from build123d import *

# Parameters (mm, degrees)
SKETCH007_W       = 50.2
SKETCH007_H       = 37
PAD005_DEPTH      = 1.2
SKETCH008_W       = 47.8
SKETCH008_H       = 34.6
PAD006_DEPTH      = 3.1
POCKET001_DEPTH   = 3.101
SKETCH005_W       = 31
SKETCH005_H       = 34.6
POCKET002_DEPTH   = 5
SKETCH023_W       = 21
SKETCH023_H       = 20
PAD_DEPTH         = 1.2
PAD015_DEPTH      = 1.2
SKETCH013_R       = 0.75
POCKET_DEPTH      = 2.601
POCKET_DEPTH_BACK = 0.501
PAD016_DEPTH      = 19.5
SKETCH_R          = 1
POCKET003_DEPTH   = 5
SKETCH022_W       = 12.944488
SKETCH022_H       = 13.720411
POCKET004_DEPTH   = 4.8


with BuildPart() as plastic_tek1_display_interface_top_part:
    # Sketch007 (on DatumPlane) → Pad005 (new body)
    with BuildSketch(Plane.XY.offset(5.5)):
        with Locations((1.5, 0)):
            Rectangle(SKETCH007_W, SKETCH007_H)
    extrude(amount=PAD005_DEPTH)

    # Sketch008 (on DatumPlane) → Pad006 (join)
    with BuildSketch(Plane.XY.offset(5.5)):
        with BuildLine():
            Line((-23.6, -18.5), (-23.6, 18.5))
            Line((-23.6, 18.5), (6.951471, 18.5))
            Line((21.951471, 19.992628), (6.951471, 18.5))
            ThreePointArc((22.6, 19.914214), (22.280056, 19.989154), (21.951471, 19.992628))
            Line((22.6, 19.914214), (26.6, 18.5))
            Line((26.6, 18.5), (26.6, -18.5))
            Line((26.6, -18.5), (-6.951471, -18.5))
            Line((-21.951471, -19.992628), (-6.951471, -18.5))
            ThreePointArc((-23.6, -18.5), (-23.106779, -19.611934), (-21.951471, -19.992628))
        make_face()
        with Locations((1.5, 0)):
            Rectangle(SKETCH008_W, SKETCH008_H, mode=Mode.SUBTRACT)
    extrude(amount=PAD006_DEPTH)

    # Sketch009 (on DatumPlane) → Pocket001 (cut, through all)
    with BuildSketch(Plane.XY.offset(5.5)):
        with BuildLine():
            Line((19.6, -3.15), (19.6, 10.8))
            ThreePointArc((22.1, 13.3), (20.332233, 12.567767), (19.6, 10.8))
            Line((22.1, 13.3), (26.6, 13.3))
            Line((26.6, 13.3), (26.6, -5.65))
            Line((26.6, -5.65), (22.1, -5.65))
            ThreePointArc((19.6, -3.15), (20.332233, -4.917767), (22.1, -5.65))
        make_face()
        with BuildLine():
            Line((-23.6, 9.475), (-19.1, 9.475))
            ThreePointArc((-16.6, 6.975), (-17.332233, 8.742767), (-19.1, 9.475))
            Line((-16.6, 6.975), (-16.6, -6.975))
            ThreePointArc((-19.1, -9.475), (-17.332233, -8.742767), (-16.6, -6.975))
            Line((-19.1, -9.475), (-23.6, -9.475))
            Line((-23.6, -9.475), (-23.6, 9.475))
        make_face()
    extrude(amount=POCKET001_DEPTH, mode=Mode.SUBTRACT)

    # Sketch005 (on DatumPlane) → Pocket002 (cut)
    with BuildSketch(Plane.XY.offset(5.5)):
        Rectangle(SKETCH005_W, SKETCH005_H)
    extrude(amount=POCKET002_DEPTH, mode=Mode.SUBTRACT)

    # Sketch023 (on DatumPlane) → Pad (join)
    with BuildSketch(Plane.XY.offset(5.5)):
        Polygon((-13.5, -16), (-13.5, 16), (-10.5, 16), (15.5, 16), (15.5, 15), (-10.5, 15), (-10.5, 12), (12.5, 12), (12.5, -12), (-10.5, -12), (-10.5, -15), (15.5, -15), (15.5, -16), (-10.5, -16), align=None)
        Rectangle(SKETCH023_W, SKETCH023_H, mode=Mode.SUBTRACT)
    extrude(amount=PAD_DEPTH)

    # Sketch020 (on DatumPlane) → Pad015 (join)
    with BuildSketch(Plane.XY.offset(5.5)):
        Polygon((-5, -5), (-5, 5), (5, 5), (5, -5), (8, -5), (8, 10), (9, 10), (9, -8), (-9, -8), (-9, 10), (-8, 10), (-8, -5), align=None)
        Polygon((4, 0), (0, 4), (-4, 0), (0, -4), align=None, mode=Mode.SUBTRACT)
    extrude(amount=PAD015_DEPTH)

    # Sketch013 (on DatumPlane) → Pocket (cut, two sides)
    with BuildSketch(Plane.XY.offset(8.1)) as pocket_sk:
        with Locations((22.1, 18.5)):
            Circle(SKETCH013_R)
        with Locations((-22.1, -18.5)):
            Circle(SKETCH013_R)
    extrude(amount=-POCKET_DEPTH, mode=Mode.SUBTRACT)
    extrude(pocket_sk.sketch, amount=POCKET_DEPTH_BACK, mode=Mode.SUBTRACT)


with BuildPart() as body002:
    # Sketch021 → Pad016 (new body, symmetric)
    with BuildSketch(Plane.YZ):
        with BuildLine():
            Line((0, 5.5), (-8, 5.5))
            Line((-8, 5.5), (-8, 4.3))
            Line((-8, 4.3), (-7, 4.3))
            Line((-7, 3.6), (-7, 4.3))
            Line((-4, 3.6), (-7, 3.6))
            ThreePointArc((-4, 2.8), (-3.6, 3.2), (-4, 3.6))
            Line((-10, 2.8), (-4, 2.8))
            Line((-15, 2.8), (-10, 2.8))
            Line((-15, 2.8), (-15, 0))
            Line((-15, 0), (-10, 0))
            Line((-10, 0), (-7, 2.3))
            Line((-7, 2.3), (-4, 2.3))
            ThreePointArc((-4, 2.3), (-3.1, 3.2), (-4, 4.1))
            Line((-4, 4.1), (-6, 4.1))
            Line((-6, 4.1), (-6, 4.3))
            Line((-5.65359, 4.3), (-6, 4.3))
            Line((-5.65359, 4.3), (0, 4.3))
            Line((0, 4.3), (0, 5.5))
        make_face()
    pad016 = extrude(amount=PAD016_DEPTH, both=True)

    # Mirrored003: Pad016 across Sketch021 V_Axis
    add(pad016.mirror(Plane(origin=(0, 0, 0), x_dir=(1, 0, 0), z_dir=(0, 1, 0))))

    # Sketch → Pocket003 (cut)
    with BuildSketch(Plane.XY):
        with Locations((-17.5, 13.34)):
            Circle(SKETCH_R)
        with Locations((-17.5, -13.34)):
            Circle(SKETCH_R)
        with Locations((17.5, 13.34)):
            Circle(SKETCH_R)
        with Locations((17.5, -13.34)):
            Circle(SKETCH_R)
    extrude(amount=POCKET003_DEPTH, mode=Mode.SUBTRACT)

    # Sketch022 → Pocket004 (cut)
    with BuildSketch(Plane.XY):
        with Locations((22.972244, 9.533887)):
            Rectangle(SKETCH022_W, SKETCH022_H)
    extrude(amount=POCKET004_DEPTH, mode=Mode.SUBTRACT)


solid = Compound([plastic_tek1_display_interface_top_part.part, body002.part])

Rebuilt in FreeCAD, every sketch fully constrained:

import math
import FreeCAD as App
import Part
import Sketcher

doc = App.newDocument("Part")
body = doc.addObject("PartDesign::Body", "Body")

# Sketch on XY plane
sketch1 = body.newObject("Sketcher::SketchObject", "Sketch")
sketch1.AttachmentSupport = (doc.getObject("XY_Plane"), [""])
sketch1.MapMode = "FlatFace"
sketch1.AttachmentOffset = App.Placement(App.Vector(0, 0, 5.5), App.Rotation())
sketch1.addGeometry(Part.LineSegment(App.Vector(-24, 18, 0), App.Vector(-24, -18, 0)), False)
sketch1.addGeometry(Part.LineSegment(App.Vector(-24, -18, 0), App.Vector(27, -18, 0)), False)
sketch1.addGeometry(Part.LineSegment(App.Vector(27, -18, 0), App.Vector(27, 18, 0)), False)
sketch1.addGeometry(Part.LineSegment(App.Vector(27, 18, 0), App.Vector(-24, 18, 0)), False)
sketch1.addConstraint(Sketcher.Constraint("Coincident", 0, 2, 1, 1))
sketch1.addConstraint(Sketcher.Constraint("Coincident", 1, 2, 2, 1))
sketch1.addConstraint(Sketcher.Constraint("Coincident", 2, 2, 3, 1))
sketch1.addConstraint(Sketcher.Constraint("Coincident", 3, 2, 0, 1))
sketch1.addConstraint(Sketcher.Constraint("Vertical", 0))
sketch1.addConstraint(Sketcher.Constraint("Horizontal", 1))
sketch1.addConstraint(Sketcher.Constraint("Vertical", 2))
sketch1.addConstraint(Sketcher.Constraint("Horizontal", 3))
sketch1.addConstraint(Sketcher.Constraint("DistanceY", 0, 2, 0, 1, 37.0))
sketch1.addConstraint(Sketcher.Constraint("DistanceX", 1, 1, 1, 2, 50.2))
sketch1.addConstraint(Sketcher.Constraint("DistanceX", 0, 2, -1, 1, 23.6))
sketch1.addConstraint(Sketcher.Constraint("DistanceY", 0, 2, -1, 1, 18.5))
pad1 = body.newObject("PartDesign::Pad", "Pad")
pad1.Profile = sketch1
pad1.Length = 1.2

# Sketch on XY plane
sketch2 = body.newObject("Sketcher::SketchObject", "Sketch001")
sketch2.AttachmentSupport = (doc.getObject("XY_Plane"), [""])
sketch2.MapMode = "FlatFace"
sketch2.AttachmentOffset = App.Placement(App.Vector(0, 0, 5.5), App.Rotation())
sketch2.addGeometry(Part.LineSegment(App.Vector(-23.6, 18.5, 0), App.Vector(-23.6, -18.5, 0)), False)
sketch2.addGeometry(Part.ArcOfCircle(Part.Circle(App.Vector(-22.1, -18.5, 0), App.Vector(0, 0, 1), 1.5), math.radians(180), math.radians(276)), False)
sketch2.addGeometry(Part.LineSegment(App.Vector(-22, -20, 0), App.Vector(-7, -18.5, 0)), False)
sketch2.addGeometry(Part.LineSegment(App.Vector(-7, -18.5, 0), App.Vector(26.6, -18.5, 0)), False)
sketch2.addGeometry(Part.LineSegment(App.Vector(26.6, -18.5, 0), App.Vector(26.6, 18.5, 0)), False)
sketch2.addGeometry(Part.LineSegment(App.Vector(26.6, 18.5, 0), App.Vector(22.6, 19.9, 0)), False)
sketch2.addGeometry(Part.ArcOfCircle(Part.Circle(App.Vector(22.1, 18.5, 0), App.Vector(0, 0, 1), 1.5), math.radians(71), math.radians(96)), False)
sketch2.addGeometry(Part.LineSegment(App.Vector(22, 20, 0), App.Vector(7, 18.5, 0)), False)
sketch2.addGeometry(Part.LineSegment(App.Vector(7, 18.5, 0), App.Vector(-23.6, 18.5, 0)), False)
sketch2.addGeometry(Part.LineSegment(App.Vector(-22.4, -17.3, 0), App.Vector(-22.4, 17.3, 0)), False)
sketch2.addGeometry(Part.LineSegment(App.Vector(-22.4, 17.3, 0), App.Vector(25.4, 17.3, 0)), False)
sketch2.addGeometry(Part.LineSegment(App.Vector(25.4, 17.3, 0), App.Vector(25.4, -17.3, 0)), False)
sketch2.addGeometry(Part.LineSegment(App.Vector(25.4, -17.3, 0), App.Vector(-22.4, -17.3, 0)), False)
sketch2.addConstraint(Sketcher.Constraint("Tangent", 0, 2, 1, 1))
sketch2.addConstraint(Sketcher.Constraint("Tangent", 1, 2, 2, 1))
sketch2.addConstraint(Sketcher.Constraint("Coincident", 2, 2, 3, 1))
sketch2.addConstraint(Sketcher.Constraint("Coincident", 3, 2, 4, 1))
sketch2.addConstraint(Sketcher.Constraint("Coincident", 4, 2, 5, 1))
sketch2.addConstraint(Sketcher.Constraint("Coincident", 5, 2, 6, 1))
sketch2.addConstraint(Sketcher.Constraint("Tangent", 6, 2, 7, 1))
sketch2.addConstraint(Sketcher.Constraint("Coincident", 7, 2, 8, 1))
sketch2.addConstraint(Sketcher.Constraint("Coincident", 8, 2, 0, 1))
sketch2.addConstraint(Sketcher.Constraint("Coincident", 9, 2, 10, 1))
sketch2.addConstraint(Sketcher.Constraint("Coincident", 10, 2, 11, 1))
sketch2.addConstraint(Sketcher.Constraint("Coincident", 11, 2, 12, 1))
sketch2.addConstraint(Sketcher.Constraint("Coincident", 12, 2, 9, 1))
sketch2.addConstraint(Sketcher.Constraint("Vertical", 0))
sketch2.addConstraint(Sketcher.Constraint("Horizontal", 3))
sketch2.addConstraint(Sketcher.Constraint("Vertical", 4))
sketch2.addConstraint(Sketcher.Constraint("Horizontal", 8))
sketch2.addConstraint(Sketcher.Constraint("Vertical", 9))
sketch2.addConstraint(Sketcher.Constraint("Horizontal", 10))
sketch2.addConstraint(Sketcher.Constraint("Vertical", 11))
sketch2.addConstraint(Sketcher.Constraint("Horizontal", 12))
sketch2.addConstraint(Sketcher.Constraint("Symmetric", 1, 3, 6, 3, -1, 1))
sketch2.addConstraint(Sketcher.Constraint("Symmetric", 1, 2, 6, 2, -1, 1))
sketch2.addConstraint(Sketcher.Constraint("Horizontal", 0, 2, 2, 2))
sketch2.addConstraint(Sketcher.Constraint("Horizontal", 4, 2, 7, 2))
sketch2.addConstraint(Sketcher.Constraint("Equal", 2, 7))
sketch2.addConstraint(Sketcher.Constraint("Radius", 1, 1.499999))
sketch2.addConstraint(Sketcher.Constraint("DistanceY", 0, 2, 0, 1, 37.0))
sketch2.addConstraint(Sketcher.Constraint("DistanceX", 10, 1, 10, 2, 47.8))
sketch2.addConstraint(Sketcher.Constraint("DistanceY", 9, 1, 9, 2, 34.6))
sketch2.addConstraint(Sketcher.Constraint("DistanceX", 1, 2, 2, 2, 15.0))
sketch2.addConstraint(Sketcher.Constraint("DistanceX", 5, 2, 4, 2, 4.0))
sketch2.addConstraint(Sketcher.Constraint("DistanceX", 1, 3, -1, 1, 22.100001))
sketch2.addConstraint(Sketcher.Constraint("DistanceX", -1, 1, 3, 2, 26.6))
sketch2.addConstraint(Sketcher.Constraint("DistanceX", 9, 2, -1, 1, 22.4))
sketch2.addConstraint(Sketcher.Constraint("DistanceY", -1, 1, 9, 2, 17.3))
pad2 = body.newObject("PartDesign::Pad", "Pad001")
pad2.Profile = sketch2
pad2.Length = 3.1

# Sketch on XY plane
sketch3 = body.newObject("Sketcher::SketchObject", "Sketch002")
sketch3.AttachmentSupport = (doc.getObject("XY_Plane"), [""])
sketch3.MapMode = "FlatFace"
sketch3.AttachmentOffset = App.Placement(App.Vector(0, 0, 5.5), App.Rotation())
sketch3.addGeometry(Part.LineSegment(App.Vector(19.6, 10.8, 0), App.Vector(19.6, -3.1, 0)), False)
sketch3.addGeometry(Part.ArcOfCircle(Part.Circle(App.Vector(22.1, -3.2, 0), App.Vector(0, 0, 1), 2.5), math.radians(180), math.radians(270)), False)
sketch3.addGeometry(Part.LineSegment(App.Vector(22.1, -5.7, 0), App.Vector(26.6, -5.7, 0)), False)
sketch3.addGeometry(Part.LineSegment(App.Vector(26.6, -5.7, 0), App.Vector(26.6, 13.3, 0)), False)
sketch3.addGeometry(Part.LineSegment(App.Vector(26.6, 13.3, 0), App.Vector(22.1, 13.3, 0)), False)
sketch3.addGeometry(Part.ArcOfCircle(Part.Circle(App.Vector(22.1, 10.8, 0), App.Vector(0, 0, 1), 2.5), math.radians(90), math.radians(180)), False)
sketch3.addGeometry(Part.LineSegment(App.Vector(-19.1, 9.5, 0), App.Vector(-23.6, 9.5, 0)), False)
sketch3.addGeometry(Part.LineSegment(App.Vector(-23.6, 9.5, 0), App.Vector(-23.6, -9.5, 0)), False)
sketch3.addGeometry(Part.LineSegment(App.Vector(-23.6, -9.5, 0), App.Vector(-19.1, -9.5, 0)), False)
sketch3.addGeometry(Part.ArcOfCircle(Part.Circle(App.Vector(-19.1, -7, 0), App.Vector(0, 0, 1), 2.5), math.radians(-90), math.radians(0)), False)
sketch3.addGeometry(Part.LineSegment(App.Vector(-16.6, -7, 0), App.Vector(-16.6, 7, 0)), False)
sketch3.addGeometry(Part.ArcOfCircle(Part.Circle(App.Vector(-19.1, 7, 0), App.Vector(0, 0, 1), 2.5), math.radians(0), math.radians(90)), False)
sketch3.addConstraint(Sketcher.Constraint("Tangent", 0, 2, 1, 1))
sketch3.addConstraint(Sketcher.Constraint("Tangent", 1, 2, 2, 1))
sketch3.addConstraint(Sketcher.Constraint("Coincident", 2, 2, 3, 1))
sketch3.addConstraint(Sketcher.Constraint("Coincident", 3, 2, 4, 1))
sketch3.addConstraint(Sketcher.Constraint("Tangent", 4, 2, 5, 1))
sketch3.addConstraint(Sketcher.Constraint("Tangent", 5, 2, 0, 1))
sketch3.addConstraint(Sketcher.Constraint("Coincident", 6, 2, 7, 1))
sketch3.addConstraint(Sketcher.Constraint("Coincident", 7, 2, 8, 1))
sketch3.addConstraint(Sketcher.Constraint("Tangent", 8, 2, 9, 1))
sketch3.addConstraint(Sketcher.Constraint("Tangent", 9, 2, 10, 1))
sketch3.addConstraint(Sketcher.Constraint("Tangent", 10, 2, 11, 1))
sketch3.addConstraint(Sketcher.Constraint("Tangent", 11, 2, 6, 1))
sketch3.addConstraint(Sketcher.Constraint("Vertical", 0))
sketch3.addConstraint(Sketcher.Constraint("Horizontal", 2))
sketch3.addConstraint(Sketcher.Constraint("Vertical", 3))
sketch3.addConstraint(Sketcher.Constraint("Horizontal", 4))
sketch3.addConstraint(Sketcher.Constraint("Horizontal", 6))
sketch3.addConstraint(Sketcher.Constraint("Vertical", 7))
sketch3.addConstraint(Sketcher.Constraint("Horizontal", 8))
sketch3.addConstraint(Sketcher.Constraint("Vertical", 10))
sketch3.addConstraint(Sketcher.Constraint("Equal", 1, 5))
sketch3.addConstraint(Sketcher.Constraint("Equal", 5, 9))
sketch3.addConstraint(Sketcher.Constraint("Equal", 9, 11))
sketch3.addConstraint(Sketcher.Constraint("Equal", 4, 6))
sketch3.addConstraint(Sketcher.Constraint("Equal", 3, 7))
sketch3.addConstraint(Sketcher.Constraint("Radius", 1, 2.5))
sketch3.addConstraint(Sketcher.Constraint("DistanceX", 2, 1, 2, 2, 4.5))
sketch3.addConstraint(Sketcher.Constraint("DistanceY", 0, 2, 0, 1, 13.95))
sketch3.addConstraint(Sketcher.Constraint("DistanceX", -1, 1, 1, 3, 22.1))
sketch3.addConstraint(Sketcher.Constraint("DistanceY", -1, 1, 5, 3, 10.8))
sketch3.addConstraint(Sketcher.Constraint("DistanceX", 9, 3, -1, 1, 19.1))
sketch3.addConstraint(Sketcher.Constraint("DistanceY", 9, 3, -1, 1, 6.975))
pocket1 = body.newObject("PartDesign::Pocket", "Pocket")
pocket1.Profile = sketch3
pocket1.Type = "ThroughAll"
pocket1.Reversed = True

# Sketch on XY plane
sketch4 = body.newObject("Sketcher::SketchObject", "Sketch003")
sketch4.AttachmentSupport = (doc.getObject("XY_Plane"), [""])
sketch4.MapMode = "FlatFace"
sketch4.AttachmentOffset = App.Placement(App.Vector(0, 0, 5.5), App.Rotation())
sketch4.addGeometry(Part.LineSegment(App.Vector(-16, 17, 0), App.Vector(-16, -17, 0)), False)
sketch4.addGeometry(Part.LineSegment(App.Vector(-16, -17, 0), App.Vector(16, -17, 0)), False)
sketch4.addGeometry(Part.LineSegment(App.Vector(16, -17, 0), App.Vector(16, 17, 0)), False)
sketch4.addGeometry(Part.LineSegment(App.Vector(16, 17, 0), App.Vector(-16, 17, 0)), False)
sketch4.addConstraint(Sketcher.Constraint("Coincident", 0, 2, 1, 1))
sketch4.addConstraint(Sketcher.Constraint("Coincident", 1, 2, 2, 1))
sketch4.addConstraint(Sketcher.Constraint("Coincident", 2, 2, 3, 1))
sketch4.addConstraint(Sketcher.Constraint("Coincident", 3, 2, 0, 1))
sketch4.addConstraint(Sketcher.Constraint("Vertical", 0))
sketch4.addConstraint(Sketcher.Constraint("Horizontal", 1))
sketch4.addConstraint(Sketcher.Constraint("Vertical", 2))
sketch4.addConstraint(Sketcher.Constraint("Horizontal", 3))
sketch4.addConstraint(Sketcher.Constraint("Symmetric", 0, 2, 2, 2, -1, 1))
sketch4.addConstraint(Sketcher.Constraint("DistanceX", 1, 1, 1, 2, 31.0))
sketch4.addConstraint(Sketcher.Constraint("DistanceY", 0, 2, 0, 1, 34.6))
pocket2 = body.newObject("PartDesign::Pocket", "Pocket001")
pocket2.Profile = sketch4
pocket2.Length = 5
pocket2.Reversed = True

# Sketch on XY plane
sketch5 = body.newObject("Sketcher::SketchObject", "Sketch004")
sketch5.AttachmentSupport = (doc.getObject("XY_Plane"), [""])
sketch5.MapMode = "FlatFace"
sketch5.AttachmentOffset = App.Placement(App.Vector(0, 0, 5.5), App.Rotation())
sketch5.addGeometry(Part.LineSegment(App.Vector(-13.5, 16, 0), App.Vector(-13.5, -16, 0)), False)
sketch5.addGeometry(Part.LineSegment(App.Vector(-13.5, -16, 0), App.Vector(15.5, -16, 0)), False)
sketch5.addGeometry(Part.LineSegment(App.Vector(15.5, -16, 0), App.Vector(15.5, -15, 0)), False)
sketch5.addGeometry(Part.LineSegment(App.Vector(15.5, -15, 0), App.Vector(-10.5, -15, 0)), False)
sketch5.addGeometry(Part.LineSegment(App.Vector(-10.5, -15, 0), App.Vector(-10.5, -12, 0)), False)
sketch5.addGeometry(Part.LineSegment(App.Vector(-10.5, -12, 0), App.Vector(12.5, -12, 0)), False)
sketch5.addGeometry(Part.LineSegment(App.Vector(12.5, -12, 0), App.Vector(12.5, 12, 0)), False)
sketch5.addGeometry(Part.LineSegment(App.Vector(12.5, 12, 0), App.Vector(-10.5, 12, 0)), False)
sketch5.addGeometry(Part.LineSegment(App.Vector(-10.5, 12, 0), App.Vector(-10.5, 15, 0)), False)
sketch5.addGeometry(Part.LineSegment(App.Vector(-10.5, 15, 0), App.Vector(15.5, 15, 0)), False)
sketch5.addGeometry(Part.LineSegment(App.Vector(15.5, 15, 0), App.Vector(15.5, 16, 0)), False)
sketch5.addGeometry(Part.LineSegment(App.Vector(15.5, 16, 0), App.Vector(-13.5, 16, 0)), False)
sketch5.addGeometry(Part.LineSegment(App.Vector(-10.5, -10, 0), App.Vector(-10.5, 10, 0)), False)
sketch5.addGeometry(Part.LineSegment(App.Vector(-10.5, 10, 0), App.Vector(10.5, 10, 0)), False)
sketch5.addGeometry(Part.LineSegment(App.Vector(10.5, 10, 0), App.Vector(10.5, -10, 0)), False)
sketch5.addGeometry(Part.LineSegment(App.Vector(10.5, -10, 0), App.Vector(-10.5, -10, 0)), False)
sketch5.addConstraint(Sketcher.Constraint("Coincident", 0, 2, 1, 1))
sketch5.addConstraint(Sketcher.Constraint("Coincident", 1, 2, 2, 1))
sketch5.addConstraint(Sketcher.Constraint("Coincident", 2, 2, 3, 1))
sketch5.addConstraint(Sketcher.Constraint("Coincident", 3, 2, 4, 1))
sketch5.addConstraint(Sketcher.Constraint("Coincident", 4, 2, 5, 1))
sketch5.addConstraint(Sketcher.Constraint("Coincident", 5, 2, 6, 1))
sketch5.addConstraint(Sketcher.Constraint("Coincident", 6, 2, 7, 1))
sketch5.addConstraint(Sketcher.Constraint("Coincident", 7, 2, 8, 1))
sketch5.addConstraint(Sketcher.Constraint("Coincident", 8, 2, 9, 1))
sketch5.addConstraint(Sketcher.Constraint("Coincident", 9, 2, 10, 1))
sketch5.addConstraint(Sketcher.Constraint("Coincident", 10, 2, 11, 1))
sketch5.addConstraint(Sketcher.Constraint("Coincident", 11, 2, 0, 1))
sketch5.addConstraint(Sketcher.Constraint("Coincident", 12, 2, 13, 1))
sketch5.addConstraint(Sketcher.Constraint("Coincident", 13, 2, 14, 1))
sketch5.addConstraint(Sketcher.Constraint("Coincident", 14, 2, 15, 1))
sketch5.addConstraint(Sketcher.Constraint("Coincident", 15, 2, 12, 1))
sketch5.addConstraint(Sketcher.Constraint("Vertical", 0))
sketch5.addConstraint(Sketcher.Constraint("Horizontal", 1))
sketch5.addConstraint(Sketcher.Constraint("Vertical", 2))
sketch5.addConstraint(Sketcher.Constraint("Horizontal", 3))
sketch5.addConstraint(Sketcher.Constraint("Vertical", 4))
sketch5.addConstraint(Sketcher.Constraint("Horizontal", 5))
sketch5.addConstraint(Sketcher.Constraint("Vertical", 6))
sketch5.addConstraint(Sketcher.Constraint("Horizontal", 7))
sketch5.addConstraint(Sketcher.Constraint("Vertical", 8))
sketch5.addConstraint(Sketcher.Constraint("Horizontal", 9))
sketch5.addConstraint(Sketcher.Constraint("Vertical", 10))
sketch5.addConstraint(Sketcher.Constraint("Horizontal", 11))
sketch5.addConstraint(Sketcher.Constraint("Vertical", 12))
sketch5.addConstraint(Sketcher.Constraint("Horizontal", 13))
sketch5.addConstraint(Sketcher.Constraint("Vertical", 14))
sketch5.addConstraint(Sketcher.Constraint("Horizontal", 15))
sketch5.addConstraint(Sketcher.Constraint("Symmetric", 12, 2, 14, 2, -1, 1))
sketch5.addConstraint(Sketcher.Constraint("Symmetric", 4, 2, 7, 2, -1))
sketch5.addConstraint(Sketcher.Constraint("Symmetric", 2, 2, 9, 2, -1))
sketch5.addConstraint(Sketcher.Constraint("Vertical", 8, 2, 12, 2))
sketch5.addConstraint(Sketcher.Constraint("Equal", 2, 10))
sketch5.addConstraint(Sketcher.Constraint("DistanceX", 1, 1, 1, 2, 29.0))
sketch5.addConstraint(Sketcher.Constraint("DistanceX", 3, 2, 3, 1, 26.0))
sketch5.addConstraint(Sketcher.Constraint("DistanceX", 5, 1, 5, 2, 23.0))
sketch5.addConstraint(Sketcher.Constraint("DistanceX", 13, 1, 13, 2, 21.0))
sketch5.addConstraint(Sketcher.Constraint("DistanceY", 0, 2, 0, 1, 32.0))
sketch5.addConstraint(Sketcher.Constraint("DistanceY", 2, 1, 2, 2, 1.0))
sketch5.addConstraint(Sketcher.Constraint("DistanceY", 4, 1, 4, 2, 3.0))
sketch5.addConstraint(Sketcher.Constraint("DistanceY", 12, 1, 12, 2, 20.0))
pad3 = body.newObject("PartDesign::Pad", "Pad002")
pad3.Profile = sketch5
pad3.Length = 1.2

# Sketch on XY plane
sketch6 = body.newObject("Sketcher::SketchObject", "Sketch005")
sketch6.AttachmentSupport = (doc.getObject("XY_Plane"), [""])
sketch6.MapMode = "FlatFace"
sketch6.AttachmentOffset = App.Placement(App.Vector(0, 0, 5.5), App.Rotation())
sketch6.addGeometry(Part.LineSegment(App.Vector(-5, 5, 0), App.Vector(-5, -5, 0)), False)
sketch6.addGeometry(Part.LineSegment(App.Vector(-5, -5, 0), App.Vector(-8, -5, 0)), False)
sketch6.addGeometry(Part.LineSegment(App.Vector(-8, -5, 0), App.Vector(-8, 10, 0)), False)
sketch6.addGeometry(Part.LineSegment(App.Vector(-8, 10, 0), App.Vector(-9, 10, 0)), False)
sketch6.addGeometry(Part.LineSegment(App.Vector(-9, 10, 0), App.Vector(-9, -8, 0)), False)
sketch6.addGeometry(Part.LineSegment(App.Vector(-9, -8, 0), App.Vector(9, -8, 0)), False)
sketch6.addGeometry(Part.LineSegment(App.Vector(9, -8, 0), App.Vector(9, 10, 0)), False)
sketch6.addGeometry(Part.LineSegment(App.Vector(9, 10, 0), App.Vector(8, 10, 0)), False)
sketch6.addGeometry(Part.LineSegment(App.Vector(8, 10, 0), App.Vector(8, -5, 0)), False)
sketch6.addGeometry(Part.LineSegment(App.Vector(8, -5, 0), App.Vector(5, -5, 0)), False)
sketch6.addGeometry(Part.LineSegment(App.Vector(5, -5, 0), App.Vector(5, 5, 0)), False)
sketch6.addGeometry(Part.LineSegment(App.Vector(5, 5, 0), App.Vector(-5, 5, 0)), False)
sketch6.addGeometry(Part.LineSegment(App.Vector(4, 0, 0), App.Vector(0, -4, 0)), False)
sketch6.addGeometry(Part.LineSegment(App.Vector(0, -4, 0), App.Vector(-4, 0, 0)), False)
sketch6.addGeometry(Part.LineSegment(App.Vector(-4, 0, 0), App.Vector(0, 4, 0)), False)
sketch6.addGeometry(Part.LineSegment(App.Vector(0, 4, 0), App.Vector(4, 0, 0)), False)
sketch6.addConstraint(Sketcher.Constraint("Coincident", 0, 2, 1, 1))
sketch6.addConstraint(Sketcher.Constraint("Coincident", 1, 2, 2, 1))
sketch6.addConstraint(Sketcher.Constraint("Coincident", 2, 2, 3, 1))
sketch6.addConstraint(Sketcher.Constraint("Coincident", 3, 2, 4, 1))
sketch6.addConstraint(Sketcher.Constraint("Coincident", 4, 2, 5, 1))
sketch6.addConstraint(Sketcher.Constraint("Coincident", 5, 2, 6, 1))
sketch6.addConstraint(Sketcher.Constraint("Coincident", 6, 2, 7, 1))
sketch6.addConstraint(Sketcher.Constraint("Coincident", 7, 2, 8, 1))
sketch6.addConstraint(Sketcher.Constraint("Coincident", 8, 2, 9, 1))
sketch6.addConstraint(Sketcher.Constraint("Coincident", 9, 2, 10, 1))
sketch6.addConstraint(Sketcher.Constraint("Coincident", 10, 2, 11, 1))
sketch6.addConstraint(Sketcher.Constraint("Coincident", 11, 2, 0, 1))
sketch6.addConstraint(Sketcher.Constraint("Coincident", 12, 2, 13, 1))
sketch6.addConstraint(Sketcher.Constraint("Coincident", 13, 2, 14, 1))
sketch6.addConstraint(Sketcher.Constraint("Coincident", 14, 2, 15, 1))
sketch6.addConstraint(Sketcher.Constraint("Coincident", 15, 2, 12, 1))
sketch6.addConstraint(Sketcher.Constraint("Vertical", 0))
sketch6.addConstraint(Sketcher.Constraint("Horizontal", 1))
sketch6.addConstraint(Sketcher.Constraint("Vertical", 2))
sketch6.addConstraint(Sketcher.Constraint("Horizontal", 3))
sketch6.addConstraint(Sketcher.Constraint("Vertical", 4))
sketch6.addConstraint(Sketcher.Constraint("Horizontal", 5))
sketch6.addConstraint(Sketcher.Constraint("Vertical", 6))
sketch6.addConstraint(Sketcher.Constraint("Horizontal", 7))
sketch6.addConstraint(Sketcher.Constraint("Vertical", 8))
sketch6.addConstraint(Sketcher.Constraint("Horizontal", 9))
sketch6.addConstraint(Sketcher.Constraint("Vertical", 10))
sketch6.addConstraint(Sketcher.Constraint("Horizontal", 11))
sketch6.addConstraint(Sketcher.Constraint("Symmetric", 0, 2, 10, 2, -1, 1))
sketch6.addConstraint(Sketcher.Constraint("Symmetric", 12, 2, 14, 2, -1, 1))
sketch6.addConstraint(Sketcher.Constraint("Symmetric", 13, 2, 15, 2, -1, 1))
sketch6.addConstraint(Sketcher.Constraint("Symmetric", 3, 2, 6, 2, -2))
sketch6.addConstraint(Sketcher.Constraint("Symmetric", 1, 2, 8, 2, -2))
sketch6.addConstraint(Sketcher.Constraint("PointOnObject", 12, 2, -2))
sketch6.addConstraint(Sketcher.Constraint("PointOnObject", 13, 2, -1))
sketch6.addConstraint(Sketcher.Constraint("Perpendicular", 12, 13))
sketch6.addConstraint(Sketcher.Constraint("Equal", 11, 0))
sketch6.addConstraint(Sketcher.Constraint("Equal", 5, 4))
sketch6.addConstraint(Sketcher.Constraint("DistanceX", 1, 2, 1, 1, 3.0))
sketch6.addConstraint(Sketcher.Constraint("DistanceX", 3, 2, 3, 1, 1.0))
sketch6.addConstraint(Sketcher.Constraint("DistanceX", 5, 1, 5, 2, 18.0))
sketch6.addConstraint(Sketcher.Constraint("DistanceY", 2, 1, 2, 2, 15.0))
sketch6.addConstraint(Sketcher.Constraint("DistanceY", 12, 2, -1, 1, 4.0))
pad4 = body.newObject("PartDesign::Pad", "Pad003")
pad4.Profile = sketch6
pad4.Length = 1.2

# Sketch on XY plane
sketch7 = body.newObject("Sketcher::SketchObject", "Sketch006")
sketch7.AttachmentSupport = (doc.getObject("XY_Plane"), [""])
sketch7.MapMode = "FlatFace"
sketch7.AttachmentOffset = App.Placement(App.Vector(0, 0, 8.1), App.Rotation())
sketch7.addGeometry(Part.Circle(App.Vector(22.1, 18.5, 0), App.Vector(0, 0, 1), 0.8), False)
sketch7.addGeometry(Part.Circle(App.Vector(-22.1, -18.5, 0), App.Vector(0, 0, 1), 0.8), False)
sketch7.addConstraint(Sketcher.Constraint("Equal", 0, 1))
sketch7.addConstraint(Sketcher.Constraint("Symmetric", 0, 3, 1, 3, -1, 1))
sketch7.addConstraint(Sketcher.Constraint("Diameter", 0, 1.5))
sketch7.addConstraint(Sketcher.Constraint("DistanceY", 1, 3, 0, 3, 37.0))
sketch7.addConstraint(Sketcher.Constraint("DistanceX", -1, 1, 0, 3, 22.1))
pocket3 = body.newObject("PartDesign::Pocket", "Pocket002")
pocket3.Profile = sketch7
pocket3.Type = "ThroughAll"
pocket3.Midplane = True
body2 = doc.addObject("PartDesign::Body", "Body001")

# Sketch on YZ plane
sketch8 = body2.newObject("Sketcher::SketchObject", "Sketch007")
sketch8.AttachmentSupport = (doc.getObject("YZ_Plane001"), [""])
sketch8.MapMode = "FlatFace"
sketch8.addGeometry(Part.LineSegment(App.Vector(0, 5.5, 0), App.Vector(-8, 5.5, 0)), False)
sketch8.addGeometry(Part.LineSegment(App.Vector(-8, 5.5, 0), App.Vector(-8, 4.3, 0)), False)
sketch8.addGeometry(Part.LineSegment(App.Vector(-8, 4.3, 0), App.Vector(-7, 4.3, 0)), False)
sketch8.addGeometry(Part.LineSegment(App.Vector(-7, 4.3, 0), App.Vector(-7, 3.6, 0)), False)
sketch8.addGeometry(Part.LineSegment(App.Vector(-7, 3.6, 0), App.Vector(-4, 3.6, 0)), False)
sketch8.addGeometry(Part.ArcOfCircle(Part.Circle(App.Vector(-4, 3.2, 0), App.Vector(0, 0, 1), 0.4), math.radians(-90), math.radians(90)), False)
sketch8.addGeometry(Part.LineSegment(App.Vector(-4, 2.8, 0), App.Vector(-15, 2.8, 0)), False)
sketch8.addGeometry(Part.LineSegment(App.Vector(-15, 2.8, 0), App.Vector(-15, 0, 0)), False)
sketch8.addGeometry(Part.LineSegment(App.Vector(-15, 0, 0), App.Vector(-10, 0, 0)), False)
sketch8.addGeometry(Part.LineSegment(App.Vector(-10, 0, 0), App.Vector(-7, 2.3, 0)), False)
sketch8.addGeometry(Part.LineSegment(App.Vector(-7, 2.3, 0), App.Vector(-4, 2.3, 0)), False)
sketch8.addGeometry(Part.ArcOfCircle(Part.Circle(App.Vector(-4, 3.2, 0), App.Vector(0, 0, 1), 0.9), math.radians(-90), math.radians(90)), False)
sketch8.addGeometry(Part.LineSegment(App.Vector(-4, 4.1, 0), App.Vector(-6, 4.1, 0)), False)
sketch8.addGeometry(Part.LineSegment(App.Vector(-6, 4.1, 0), App.Vector(-6, 4.3, 0)), False)
sketch8.addGeometry(Part.LineSegment(App.Vector(-6, 4.3, 0), App.Vector(0, 4.3, 0)), False)
sketch8.addGeometry(Part.LineSegment(App.Vector(0, 4.3, 0), App.Vector(0, 5.5, 0)), False)
sketch8.addConstraint(Sketcher.Constraint("Coincident", 0, 2, 1, 1))
sketch8.addConstraint(Sketcher.Constraint("Coincident", 1, 2, 2, 1))
sketch8.addConstraint(Sketcher.Constraint("Coincident", 2, 2, 3, 1))
sketch8.addConstraint(Sketcher.Constraint("Coincident", 3, 2, 4, 1))
sketch8.addConstraint(Sketcher.Constraint("Tangent", 4, 2, 5, 2))
sketch8.addConstraint(Sketcher.Constraint("Tangent", 5, 1, 6, 1))
sketch8.addConstraint(Sketcher.Constraint("Coincident", 6, 2, 7, 1))
sketch8.addConstraint(Sketcher.Constraint("Coincident", 7, 2, 8, 1))
sketch8.addConstraint(Sketcher.Constraint("Coincident", 8, 2, 9, 1))
sketch8.addConstraint(Sketcher.Constraint("Coincident", 9, 2, 10, 1))
sketch8.addConstraint(Sketcher.Constraint("Tangent", 10, 2, 11, 1))
sketch8.addConstraint(Sketcher.Constraint("Tangent", 11, 2, 12, 1))
sketch8.addConstraint(Sketcher.Constraint("Coincident", 12, 2, 13, 1))
sketch8.addConstraint(Sketcher.Constraint("Coincident", 13, 2, 14, 1))
sketch8.addConstraint(Sketcher.Constraint("Coincident", 14, 2, 15, 1))
sketch8.addConstraint(Sketcher.Constraint("Coincident", 15, 2, 0, 1))
sketch8.addConstraint(Sketcher.Constraint("Horizontal", 0))
sketch8.addConstraint(Sketcher.Constraint("Vertical", 1))
sketch8.addConstraint(Sketcher.Constraint("Horizontal", 2))
sketch8.addConstraint(Sketcher.Constraint("Vertical", 3))
sketch8.addConstraint(Sketcher.Constraint("Horizontal", 4))
sketch8.addConstraint(Sketcher.Constraint("Horizontal", 6))
sketch8.addConstraint(Sketcher.Constraint("Vertical", 7))
sketch8.addConstraint(Sketcher.Constraint("Horizontal", 8))
sketch8.addConstraint(Sketcher.Constraint("Horizontal", 10))
sketch8.addConstraint(Sketcher.Constraint("Horizontal", 12))
sketch8.addConstraint(Sketcher.Constraint("Vertical", 13))
sketch8.addConstraint(Sketcher.Constraint("Horizontal", 14))
sketch8.addConstraint(Sketcher.Constraint("Vertical", 15))
sketch8.addConstraint(Sketcher.Constraint("Coincident", 11, 3, 5, 3))
sketch8.addConstraint(Sketcher.Constraint("PointOnObject", 7, 2, -1))
sketch8.addConstraint(Sketcher.Constraint("PointOnObject", 14, 2, -2))
sketch8.addConstraint(Sketcher.Constraint("Horizontal", 2, 2, 13, 2))
sketch8.addConstraint(Sketcher.Constraint("Vertical", 3, 2, 9, 2))
sketch8.addConstraint(Sketcher.Constraint("Radius", 5, 0.4))
sketch8.addConstraint(Sketcher.Constraint("Radius", 11, 0.9))
sketch8.addConstraint(Sketcher.Constraint("DistanceX", 0, 2, 0, 1, 8.0))
sketch8.addConstraint(Sketcher.Constraint("DistanceX", 2, 1, 2, 2, 1.0))
sketch8.addConstraint(Sketcher.Constraint("DistanceX", 4, 1, 4, 2, 3.0))
sketch8.addConstraint(Sketcher.Constraint("DistanceX", 6, 2, 6, 1, 11.0))
sketch8.addConstraint(Sketcher.Constraint("DistanceX", 8, 1, 8, 2, 5.0))
sketch8.addConstraint(Sketcher.Constraint("DistanceX", 12, 2, 12, 1, 2.0))
sketch8.addConstraint(Sketcher.Constraint("DistanceY", 1, 2, 1, 1, 1.2))
sketch8.addConstraint(Sketcher.Constraint("DistanceY", 3, 2, 3, 1, 0.7))
sketch8.addConstraint(Sketcher.Constraint("DistanceY", 7, 2, 7, 1, 2.8))
pad5 = body2.newObject("PartDesign::Pad", "Pad004")
pad5.Profile = sketch8
pad5.Length = 39
pad5.Midplane = True
doc.recompute()

mirrored = body2.newObject("PartDesign::Mirrored", "Mirrored")
mirrored.Originals = [pad5]
mirrored.MirrorPlane = (doc.getObject("XZ_Plane001"), [""])
body2.Tip = mirrored

# Sketch on XY plane
sketch9 = body2.newObject("Sketcher::SketchObject", "Sketch008")
sketch9.AttachmentSupport = (doc.getObject("XY_Plane001"), [""])
sketch9.MapMode = "FlatFace"
sketch9.addGeometry(Part.Circle(App.Vector(-17.5, 13.3, 0), App.Vector(0, 0, 1), 1), False)
sketch9.addGeometry(Part.Circle(App.Vector(-17.5, -13.3, 0), App.Vector(0, 0, 1), 1), False)
sketch9.addGeometry(Part.Circle(App.Vector(17.5, 13.3, 0), App.Vector(0, 0, 1), 1), False)
sketch9.addGeometry(Part.Circle(App.Vector(17.5, -13.3, 0), App.Vector(0, 0, 1), 1), False)
sketch9.addConstraint(Sketcher.Constraint("Equal", 0, 1))
sketch9.addConstraint(Sketcher.Constraint("Equal", 1, 2))
sketch9.addConstraint(Sketcher.Constraint("Equal", 2, 3))
sketch9.addConstraint(Sketcher.Constraint("Symmetric", 1, 3, 2, 3, -1, 1))
sketch9.addConstraint(Sketcher.Constraint("Symmetric", 0, 3, 3, 3, -1, 1))
sketch9.addConstraint(Sketcher.Constraint("Symmetric", 0, 3, 2, 3, -2))
sketch9.addConstraint(Sketcher.Constraint("Diameter", 0, 2.0))
sketch9.addConstraint(Sketcher.Constraint("DistanceX", 0, 3, 2, 3, 35.0))
sketch9.addConstraint(Sketcher.Constraint("DistanceY", -1, 1, 0, 3, 13.34))
pocket4 = body2.newObject("PartDesign::Pocket", "Pocket003")
pocket4.Profile = sketch9
pocket4.Length = 5
pocket4.Reversed = True

# Sketch on XY plane
sketch10 = body2.newObject("Sketcher::SketchObject", "Sketch009")
sketch10.AttachmentSupport = (doc.getObject("XY_Plane001"), [""])
sketch10.MapMode = "FlatFace"
sketch10.addGeometry(Part.LineSegment(App.Vector(16, 16, 0), App.Vector(16, 3, 0)), False)
sketch10.addGeometry(Part.LineSegment(App.Vector(16, 3, 0), App.Vector(29, 3, 0)), False)
sketch10.addGeometry(Part.LineSegment(App.Vector(29, 3, 0), App.Vector(29, 16, 0)), False)
sketch10.addGeometry(Part.LineSegment(App.Vector(29, 16, 0), App.Vector(16, 16, 0)), False)
sketch10.addConstraint(Sketcher.Constraint("Coincident", 0, 2, 1, 1))
sketch10.addConstraint(Sketcher.Constraint("Coincident", 1, 2, 2, 1))
sketch10.addConstraint(Sketcher.Constraint("Coincident", 2, 2, 3, 1))
sketch10.addConstraint(Sketcher.Constraint("Coincident", 3, 2, 0, 1))
sketch10.addConstraint(Sketcher.Constraint("Vertical", 0))
sketch10.addConstraint(Sketcher.Constraint("Horizontal", 1))
sketch10.addConstraint(Sketcher.Constraint("Vertical", 2))
sketch10.addConstraint(Sketcher.Constraint("Horizontal", 3))
sketch10.addConstraint(Sketcher.Constraint("DistanceX", -1, 1, 0, 2, 16.5))
sketch10.addConstraint(Sketcher.Constraint("DistanceY", 0, 2, 0, 1, 13.720411))
sketch10.addConstraint(Sketcher.Constraint("DistanceX", 1, 1, 1, 2, 12.944488))
sketch10.addConstraint(Sketcher.Constraint("DistanceY", -1, 1, 0, 2, 2.673681))
pocket5 = body2.newObject("PartDesign::Pocket", "Pocket004")
pocket5.Profile = sketch10
pocket5.Length = 4.8
pocket5.Reversed = True

doc.recompute()
